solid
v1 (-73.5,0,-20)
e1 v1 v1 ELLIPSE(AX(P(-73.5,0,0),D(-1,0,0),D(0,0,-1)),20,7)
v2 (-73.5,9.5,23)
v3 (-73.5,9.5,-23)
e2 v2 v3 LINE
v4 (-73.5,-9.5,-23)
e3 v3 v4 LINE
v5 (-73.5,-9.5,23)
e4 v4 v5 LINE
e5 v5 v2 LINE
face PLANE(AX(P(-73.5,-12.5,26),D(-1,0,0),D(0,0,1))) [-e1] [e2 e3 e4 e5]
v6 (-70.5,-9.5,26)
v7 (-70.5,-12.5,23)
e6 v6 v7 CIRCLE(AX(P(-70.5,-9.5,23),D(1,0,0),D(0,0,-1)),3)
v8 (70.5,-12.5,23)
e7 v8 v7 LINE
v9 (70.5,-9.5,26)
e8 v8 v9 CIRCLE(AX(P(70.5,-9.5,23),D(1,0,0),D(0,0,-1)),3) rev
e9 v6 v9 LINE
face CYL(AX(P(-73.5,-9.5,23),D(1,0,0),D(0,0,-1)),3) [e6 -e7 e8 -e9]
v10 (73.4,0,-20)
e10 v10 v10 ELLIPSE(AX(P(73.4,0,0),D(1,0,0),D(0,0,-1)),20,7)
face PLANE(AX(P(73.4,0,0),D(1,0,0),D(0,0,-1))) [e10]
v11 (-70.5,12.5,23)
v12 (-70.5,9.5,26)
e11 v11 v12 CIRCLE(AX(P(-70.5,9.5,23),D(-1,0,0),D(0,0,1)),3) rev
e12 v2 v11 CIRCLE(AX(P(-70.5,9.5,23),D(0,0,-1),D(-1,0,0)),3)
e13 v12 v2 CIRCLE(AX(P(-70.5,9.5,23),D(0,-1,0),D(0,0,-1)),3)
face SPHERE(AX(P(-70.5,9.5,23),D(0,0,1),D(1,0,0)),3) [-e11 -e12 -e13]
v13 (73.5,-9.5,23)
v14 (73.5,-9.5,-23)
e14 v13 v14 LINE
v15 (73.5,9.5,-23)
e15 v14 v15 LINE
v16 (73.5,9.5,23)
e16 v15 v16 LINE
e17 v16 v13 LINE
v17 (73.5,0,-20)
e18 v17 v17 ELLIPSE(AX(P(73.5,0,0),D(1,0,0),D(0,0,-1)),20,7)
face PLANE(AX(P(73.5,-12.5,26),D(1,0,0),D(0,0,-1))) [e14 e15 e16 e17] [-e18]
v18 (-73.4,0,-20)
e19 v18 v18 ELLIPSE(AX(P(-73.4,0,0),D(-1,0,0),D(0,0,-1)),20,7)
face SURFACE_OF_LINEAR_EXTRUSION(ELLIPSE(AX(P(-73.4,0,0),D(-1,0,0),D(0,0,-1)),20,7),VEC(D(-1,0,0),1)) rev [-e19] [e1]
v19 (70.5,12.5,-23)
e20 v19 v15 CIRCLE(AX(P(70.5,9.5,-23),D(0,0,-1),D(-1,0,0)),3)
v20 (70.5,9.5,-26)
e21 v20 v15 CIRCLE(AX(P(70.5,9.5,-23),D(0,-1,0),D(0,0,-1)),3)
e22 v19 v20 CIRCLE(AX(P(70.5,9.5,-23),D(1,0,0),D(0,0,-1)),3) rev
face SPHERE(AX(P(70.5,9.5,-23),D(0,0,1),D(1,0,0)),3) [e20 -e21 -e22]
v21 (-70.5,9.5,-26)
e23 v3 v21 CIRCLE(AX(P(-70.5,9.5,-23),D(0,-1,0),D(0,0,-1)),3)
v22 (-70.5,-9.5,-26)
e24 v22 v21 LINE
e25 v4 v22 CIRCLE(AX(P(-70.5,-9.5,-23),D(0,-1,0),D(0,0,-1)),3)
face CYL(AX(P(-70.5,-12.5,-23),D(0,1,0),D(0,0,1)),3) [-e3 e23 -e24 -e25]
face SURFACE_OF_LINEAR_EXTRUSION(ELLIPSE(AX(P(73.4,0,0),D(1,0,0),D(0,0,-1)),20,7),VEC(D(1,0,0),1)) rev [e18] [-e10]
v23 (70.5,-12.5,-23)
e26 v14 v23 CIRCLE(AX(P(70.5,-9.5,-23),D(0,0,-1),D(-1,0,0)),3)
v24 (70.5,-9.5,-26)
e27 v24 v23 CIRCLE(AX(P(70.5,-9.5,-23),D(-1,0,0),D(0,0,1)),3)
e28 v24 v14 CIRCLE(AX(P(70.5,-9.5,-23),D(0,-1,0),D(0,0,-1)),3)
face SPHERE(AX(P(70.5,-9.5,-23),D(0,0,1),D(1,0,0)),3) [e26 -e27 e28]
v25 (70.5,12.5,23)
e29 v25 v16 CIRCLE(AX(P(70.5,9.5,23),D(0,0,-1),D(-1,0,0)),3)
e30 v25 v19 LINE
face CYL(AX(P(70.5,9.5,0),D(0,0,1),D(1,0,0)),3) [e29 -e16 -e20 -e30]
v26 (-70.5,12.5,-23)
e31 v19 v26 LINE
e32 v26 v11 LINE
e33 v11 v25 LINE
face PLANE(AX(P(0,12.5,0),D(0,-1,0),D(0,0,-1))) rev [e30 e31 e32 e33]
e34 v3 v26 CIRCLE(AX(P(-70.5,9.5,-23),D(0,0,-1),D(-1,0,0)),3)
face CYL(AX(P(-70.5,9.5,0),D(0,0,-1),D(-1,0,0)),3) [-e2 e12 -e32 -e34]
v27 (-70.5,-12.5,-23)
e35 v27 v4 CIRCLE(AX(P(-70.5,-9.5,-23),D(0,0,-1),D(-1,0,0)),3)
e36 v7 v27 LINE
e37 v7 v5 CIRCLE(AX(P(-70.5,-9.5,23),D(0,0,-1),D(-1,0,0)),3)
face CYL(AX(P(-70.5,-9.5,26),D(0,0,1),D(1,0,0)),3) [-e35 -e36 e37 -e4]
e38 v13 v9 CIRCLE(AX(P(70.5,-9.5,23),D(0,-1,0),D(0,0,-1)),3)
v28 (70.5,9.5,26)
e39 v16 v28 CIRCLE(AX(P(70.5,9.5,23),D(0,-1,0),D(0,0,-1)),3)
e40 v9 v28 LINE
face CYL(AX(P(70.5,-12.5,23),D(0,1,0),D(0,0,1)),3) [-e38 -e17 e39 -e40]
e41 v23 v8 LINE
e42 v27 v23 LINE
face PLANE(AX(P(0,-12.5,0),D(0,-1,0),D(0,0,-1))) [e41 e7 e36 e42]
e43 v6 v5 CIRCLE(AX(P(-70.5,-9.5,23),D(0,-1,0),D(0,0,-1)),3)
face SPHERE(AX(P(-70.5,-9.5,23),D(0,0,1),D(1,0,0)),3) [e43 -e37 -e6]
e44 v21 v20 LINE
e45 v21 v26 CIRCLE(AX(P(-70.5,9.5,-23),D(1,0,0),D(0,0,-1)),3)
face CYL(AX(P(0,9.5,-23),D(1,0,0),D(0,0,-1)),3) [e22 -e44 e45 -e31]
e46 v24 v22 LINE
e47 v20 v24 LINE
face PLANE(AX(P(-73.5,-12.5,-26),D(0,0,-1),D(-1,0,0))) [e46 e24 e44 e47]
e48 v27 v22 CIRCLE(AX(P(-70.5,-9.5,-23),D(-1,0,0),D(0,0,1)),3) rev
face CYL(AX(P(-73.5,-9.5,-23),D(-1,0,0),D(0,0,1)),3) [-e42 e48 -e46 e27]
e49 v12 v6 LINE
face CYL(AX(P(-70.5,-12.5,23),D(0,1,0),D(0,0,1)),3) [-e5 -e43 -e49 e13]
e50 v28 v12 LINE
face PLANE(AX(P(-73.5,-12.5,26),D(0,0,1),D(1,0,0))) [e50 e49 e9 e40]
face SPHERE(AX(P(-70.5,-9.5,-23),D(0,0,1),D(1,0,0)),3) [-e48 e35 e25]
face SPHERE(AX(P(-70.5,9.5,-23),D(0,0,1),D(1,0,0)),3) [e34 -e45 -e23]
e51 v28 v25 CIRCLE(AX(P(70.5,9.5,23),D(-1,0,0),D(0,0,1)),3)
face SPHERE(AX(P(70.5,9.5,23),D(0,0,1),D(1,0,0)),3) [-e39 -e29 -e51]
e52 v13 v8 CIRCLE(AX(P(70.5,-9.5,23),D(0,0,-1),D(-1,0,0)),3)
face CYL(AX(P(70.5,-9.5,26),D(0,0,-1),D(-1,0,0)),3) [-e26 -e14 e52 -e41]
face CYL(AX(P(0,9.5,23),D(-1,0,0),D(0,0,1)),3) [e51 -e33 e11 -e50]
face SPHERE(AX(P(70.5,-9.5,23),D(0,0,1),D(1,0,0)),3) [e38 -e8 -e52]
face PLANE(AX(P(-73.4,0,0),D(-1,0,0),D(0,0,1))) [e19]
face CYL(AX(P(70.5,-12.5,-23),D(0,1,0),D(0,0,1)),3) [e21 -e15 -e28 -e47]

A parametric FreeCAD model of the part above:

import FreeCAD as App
import Part
import Sketcher


def edges_at(feature, points):
    """Names of the edges that pass closest to the given points."""
    edges = feature.Shape.Edges
    near = lambda p: min(range(len(edges)), key=lambda i: edges[i].distToShape(Part.Vertex(*p))[0])
    return sorted({f"Edge{near(p) + 1}" for p in points})

doc = App.newDocument("Part")
body = doc.addObject("PartDesign::Body", "Body")

sketch1 = doc.addObject("Sketcher::SketchObject", "Sketch")
body.addObject(sketch1)
sketch1.AttachmentSupport = (doc.XZ_Plane, [""])
sketch1.MapMode = "FlatFace"
sketch1.addGeometry([
    Part.LineSegment(App.Vector(-73.5, -26, 0), App.Vector(-73.5, 26, 0)),
    Part.LineSegment(App.Vector(-73.5, 26, 0), App.Vector(73.5, 26, 0)),
    Part.LineSegment(App.Vector(73.5, 26, 0), App.Vector(73.5, -26, 0)),
    Part.LineSegment(App.Vector(73.5, -26, 0), App.Vector(-73.5, -26, 0)),
], False)
sketch1.addConstraint([
    Sketcher.Constraint("Coincident", 0, 2, 1, 1),
    Sketcher.Constraint("Coincident", 1, 2, 2, 1),
    Sketcher.Constraint("Coincident", 2, 2, 3, 1),
    Sketcher.Constraint("Coincident", 3, 2, 0, 1),
    Sketcher.Constraint("Vertical", 0),
    Sketcher.Constraint("Horizontal", 1),
    Sketcher.Constraint("Vertical", 2),
    Sketcher.Constraint("Horizontal", 3),
    Sketcher.Constraint("Symmetric", 0, 2, 2, 2, -1, 1),
    Sketcher.Constraint("DistanceX", 1, 1, 1, 2, 147.0),
    Sketcher.Constraint("DistanceY", 0, 1, 0, 2, 52.0),
])
pad1 = doc.addObject("PartDesign::Pad", "Pad")
body.addObject(pad1)
pad1.Profile = sketch1
pad1.Type = "TwoLengths"
pad1.Length = 12.5
pad1.Length2 = 12.5
pad1.Reversed = True
doc.recompute()

fillet = doc.addObject("PartDesign::Fillet", "Fillet")
body.addObject(fillet)
fillet.Base = (pad1, edges_at(pad1, [
    (0, 12.5, -26),
    (0, -12.5, 26),
    (0, 12.5, 26),
    (0, -12.5, -26),
]))
fillet.Radius = 3
doc.recompute()

fillet2 = doc.addObject("PartDesign::Fillet", "Fillet001")
body.addObject(fillet2)
fillet2.Base = (fillet, edges_at(fillet, [
    (73.5, 0, 26),
    (-73.5, 0, 26),
    (73.5, 0, -26),
    (73.5, 12.5, 0),
    (73.5, -12.5, 0),
    (73.5, 11.621, 25.121),
    (73.5, 11.621, -25.121),
    (73.5, -11.621, -25.121),
    (73.5, -11.621, 25.121),
    (-73.5, -12.5, 0),
    (-73.5, 12.5, 0),
    (-73.5, 0, -26),
    (-73.5, 11.621, 25.121),
    (-73.5, 11.621, -25.121),
    (-73.5, -11.621, -25.121),
    (-73.5, -11.621, 25.121),
]))
fillet2.Radius = 3

sketch2 = doc.addObject("Sketcher::SketchObject", "Sketch001")
body.addObject(sketch2)
sketch2.AttachmentSupport = (doc.YZ_Plane, [""])
sketch2.MapMode = "FlatFace"
sketch2.AttachmentOffset = App.Placement(App.Vector(0, 0, 73.5), App.Rotation())
sketch2.addGeometry(Part.Ellipse(App.Vector(0, -20, 0), App.Vector(7, 0, 0), App.Vector(0, 0, 0)), False)
sketch2.addConstraint(Sketcher.Constraint("Block", 0))
pocket1 = doc.addObject("PartDesign::Pocket", "Pocket")
body.addObject(pocket1)
pocket1.Profile = sketch2
pocket1.Length = 0.1

sketch3 = doc.addObject("Sketcher::SketchObject", "Sketch002")
body.addObject(sketch3)
sketch3.AttachmentSupport = (doc.YZ_Plane, [""])
sketch3.MapMode = "FlatFace"
sketch3.AttachmentOffset = App.Placement(App.Vector(0, 0, -73.5), App.Rotation())
sketch3.addGeometry(Part.Ellipse(App.Vector(0, -20, 0), App.Vector(7, 0, 0), App.Vector(0, 0, 0)), False)
sketch3.addConstraint(Sketcher.Constraint("Block", 0))
pocket2 = doc.addObject("PartDesign::Pocket", "Pocket001")
body.addObject(pocket2)
pocket2.Profile = sketch3
pocket2.Length = 0.1
pocket2.Reversed = True

doc.recompute()
